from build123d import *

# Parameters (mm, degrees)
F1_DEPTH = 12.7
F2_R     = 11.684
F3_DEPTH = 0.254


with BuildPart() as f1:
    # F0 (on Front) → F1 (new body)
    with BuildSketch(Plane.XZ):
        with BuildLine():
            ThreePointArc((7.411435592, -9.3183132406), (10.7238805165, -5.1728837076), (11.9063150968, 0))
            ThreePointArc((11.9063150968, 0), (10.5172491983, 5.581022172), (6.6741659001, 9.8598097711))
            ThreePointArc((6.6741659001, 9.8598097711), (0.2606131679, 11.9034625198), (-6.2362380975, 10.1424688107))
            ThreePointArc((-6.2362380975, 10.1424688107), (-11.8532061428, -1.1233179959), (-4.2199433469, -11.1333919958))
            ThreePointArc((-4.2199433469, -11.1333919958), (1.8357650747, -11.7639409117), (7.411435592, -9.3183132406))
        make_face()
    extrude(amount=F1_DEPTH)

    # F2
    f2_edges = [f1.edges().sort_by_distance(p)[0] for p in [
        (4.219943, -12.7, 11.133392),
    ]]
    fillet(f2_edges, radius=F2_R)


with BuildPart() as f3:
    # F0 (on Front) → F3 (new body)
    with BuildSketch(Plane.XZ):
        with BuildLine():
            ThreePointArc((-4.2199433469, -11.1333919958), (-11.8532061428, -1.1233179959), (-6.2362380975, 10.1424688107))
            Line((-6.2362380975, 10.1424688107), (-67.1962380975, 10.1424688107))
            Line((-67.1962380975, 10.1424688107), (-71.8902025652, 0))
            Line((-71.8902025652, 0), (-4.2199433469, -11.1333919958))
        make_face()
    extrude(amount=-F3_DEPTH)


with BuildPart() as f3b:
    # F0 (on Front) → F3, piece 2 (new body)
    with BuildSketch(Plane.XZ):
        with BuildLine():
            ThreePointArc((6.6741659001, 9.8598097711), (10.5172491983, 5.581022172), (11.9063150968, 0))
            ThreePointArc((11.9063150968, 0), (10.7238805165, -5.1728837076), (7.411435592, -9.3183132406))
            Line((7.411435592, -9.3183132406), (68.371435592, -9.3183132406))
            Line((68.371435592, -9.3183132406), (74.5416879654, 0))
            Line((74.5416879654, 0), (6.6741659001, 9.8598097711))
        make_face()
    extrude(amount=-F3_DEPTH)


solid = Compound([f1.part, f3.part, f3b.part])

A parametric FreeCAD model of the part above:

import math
import FreeCAD as App
import Part
import Sketcher
from FreeCAD import Vector
Q = App.Units.Quantity


def edges_at(feature, points):
    """Names of the edges that pass closest to the given points."""
    edges = feature.Shape.Edges
    near = lambda p: min(range(len(edges)), key=lambda i: edges[i].distToShape(Part.Vertex(*p))[0])
    return sorted({f"Edge{near(p) + 1}" for p in points})

doc = App.newDocument("Part")
body = doc.addObject("PartDesign::Body", "Body")

# Sketch on XZ plane
sketch1 = doc.addObject("Sketcher::SketchObject", "Sketch")
body.addObject(sketch1)
sketch1.AttachmentSupport = (doc.XZ_Plane, [""])
sketch1.MapMode = "FlatFace"
sketch1.addGeometry(Part.ArcOfCircle(Part.Circle(Vector(0, 0, 0), Vector(0, 0, 1), 12), math.radians(0), math.radians(56)), False)
sketch1.addGeometry(Part.ArcOfCircle(Part.Circle(Vector(0, 0, 0), Vector(0, 0, 1), 12), math.radians(56), math.radians(122)), False)
sketch1.addGeometry(Part.ArcOfCircle(Part.Circle(Vector(0, 0, 0), Vector(0, 0, 1), 12), math.radians(122), math.radians(360)), False)
sketch1.addConstraint(Sketcher.Constraint("Tangent", 0, 2, 1, 1))
sketch1.addConstraint(Sketcher.Constraint("Tangent", 1, 2, 2, 1))
sketch1.addConstraint(Sketcher.Constraint("Tangent", 2, 2, 0, 1))
sketch1.addConstraint(Sketcher.Constraint("Coincident", 0, 3, -1, 1))
sketch1.addConstraint(Sketcher.Constraint("PointOnObject", 2, 2, -1))
sketch1.addConstraint(Sketcher.Constraint("Radius", 0, Q("11.906315 mm")))
sketch1.addConstraint(Sketcher.Constraint("DistanceY", -1, 1, 0, 2, Q("9.85981 mm")))
sketch1.addConstraint(Sketcher.Constraint("DistanceX", 1, 2, -1, 1, Q("6.236238 mm")))
pad1 = doc.addObject("PartDesign::Pad", "Pad")
body.addObject(pad1)
pad1.Profile = sketch1
pad1.Length = Q("0.5 in")
doc.recompute()

fillet = doc.addObject("PartDesign::Fillet", "Fillet")
body.addObject(fillet)
fillet.Base = (pad1, edges_at(pad1, [(0.261, -12.7, 11.903)]))
fillet.Radius = Q("0.46 in")
body2 = doc.addObject("PartDesign::Body", "Body001")

# Sketch on XZ plane
sketch2 = doc.addObject("Sketcher::SketchObject", "Sketch001")
body2.addObject(sketch2)
sketch2.AttachmentSupport = (doc.getObject("XZ_Plane001"), [""])
sketch2.MapMode = "FlatFace"
sketch2.addGeometry(Part.ArcOfCircle(Part.Circle(Vector(0, 0, 0), Vector(0, 0, 1), 12), math.radians(122), math.radians(249)), False)
sketch2.addGeometry(Part.LineSegment(Vector(-6, 10, 0), Vector(-67, 10, 0)), False)
sketch2.addGeometry(Part.LineSegment(Vector(-67, 10, 0), Vector(-72, 0, 0)), False)
sketch2.addGeometry(Part.LineSegment(Vector(-72, 0, 0), Vector(-4, -11, 0)), False)
sketch2.addConstraint(Sketcher.Constraint("Coincident", 0, 1, 1, 1))
sketch2.addConstraint(Sketcher.Constraint("Coincident", 1, 2, 2, 1))
sketch2.addConstraint(Sketcher.Constraint("Coincident", 2, 2, 3, 1))
sketch2.addConstraint(Sketcher.Constraint("Coincident", 3, 2, 0, 2))
sketch2.addConstraint(Sketcher.Constraint("Horizontal", 1))
sketch2.addConstraint(Sketcher.Constraint("Coincident", 0, 3, -1, 1))
sketch2.addConstraint(Sketcher.Constraint("PointOnObject", 2, 2, -1))
sketch2.addConstraint(Sketcher.Constraint("DistanceX", 1, 2, 1, 1, Q("2.4 in")))
sketch2.addConstraint(Sketcher.Constraint("Distance", 3, Q("2.7 in")))
sketch2.addConstraint(Sketcher.Constraint("Distance", 2, Q("0.44 in")))
sketch2.addConstraint(Sketcher.Constraint("Radius", 0, Q("11.906315 mm")))
sketch2.addConstraint(Sketcher.Constraint("DistanceX", 0, 1, -1, 1, Q("6.236238 mm")))
pad2 = doc.addObject("PartDesign::Pad", "Pad001")
body2.addObject(pad2)
pad2.Profile = sketch2
pad2.Length = Q("0.01 in")
pad2.Reversed = True
body3 = doc.addObject("PartDesign::Body", "Body002")

# Sketch on XZ plane
sketch3 = doc.addObject("Sketcher::SketchObject", "Sketch002")
body3.addObject(sketch3)
sketch3.AttachmentSupport = (doc.getObject("XZ_Plane002"), [""])
sketch3.MapMode = "FlatFace"
sketch3.addGeometry(Part.ArcOfCircle(Part.Circle(Vector(0, 0, 0), Vector(0, 0, 1), 12), math.radians(0), math.radians(56)), False)
sketch3.addGeometry(Part.ArcOfCircle(Part.Circle(Vector(0, 0, 0), Vector(0, 0, 1), 12), math.radians(-52), math.radians(0)), False)
sketch3.addGeometry(Part.LineSegment(Vector(7, -9, 0), Vector(68, -9, 0)), False)
sketch3.addGeometry(Part.LineSegment(Vector(68, -9, 0), Vector(75, 0, 0)), False)
sketch3.addGeometry(Part.LineSegment(Vector(75, 0, 0), Vector(7, 10, 0)), False)
sketch3.addConstraint(Sketcher.Constraint("Tangent", 0, 1, 1, 2))
sketch3.addConstraint(Sketcher.Constraint("Coincident", 1, 1, 2, 1))
sketch3.addConstraint(Sketcher.Constraint("Coincident", 2, 2, 3, 1))
sketch3.addConstraint(Sketcher.Constraint("Coincident", 3, 2, 4, 1))
sketch3.addConstraint(Sketcher.Constraint("Coincident", 4, 2, 0, 2))
sketch3.addConstraint(Sketcher.Constraint("Horizontal", 2))
sketch3.addConstraint(Sketcher.Constraint("Coincident", 0, 3, -1, 1))
sketch3.addConstraint(Sketcher.Constraint("Equal", 0, 1))
sketch3.addConstraint(Sketcher.Constraint("PointOnObject", 0, 1, -1))
sketch3.addConstraint(Sketcher.Constraint("PointOnObject", 3, 2, -1))
sketch3.addConstraint(Sketcher.Constraint("DistanceX", 2, 1, 2, 2, Q("2.4 in")))
sketch3.addConstraint(Sketcher.Constraint("Distance", 4, Q("2.7 in")))
sketch3.addConstraint(Sketcher.Constraint("Distance", 3, Q("0.44 in")))
sketch3.addConstraint(Sketcher.Constraint("Radius", 0, Q("11.906315 mm")))
sketch3.addConstraint(Sketcher.Constraint("DistanceY", -1, 1, 4, 2, Q("9.85981 mm")))
pad3 = doc.addObject("PartDesign::Pad", "Pad002")
body3.addObject(pad3)
pad3.Profile = sketch3
pad3.Length = Q("0.01 in")
pad3.Reversed = True

doc.recompute()
